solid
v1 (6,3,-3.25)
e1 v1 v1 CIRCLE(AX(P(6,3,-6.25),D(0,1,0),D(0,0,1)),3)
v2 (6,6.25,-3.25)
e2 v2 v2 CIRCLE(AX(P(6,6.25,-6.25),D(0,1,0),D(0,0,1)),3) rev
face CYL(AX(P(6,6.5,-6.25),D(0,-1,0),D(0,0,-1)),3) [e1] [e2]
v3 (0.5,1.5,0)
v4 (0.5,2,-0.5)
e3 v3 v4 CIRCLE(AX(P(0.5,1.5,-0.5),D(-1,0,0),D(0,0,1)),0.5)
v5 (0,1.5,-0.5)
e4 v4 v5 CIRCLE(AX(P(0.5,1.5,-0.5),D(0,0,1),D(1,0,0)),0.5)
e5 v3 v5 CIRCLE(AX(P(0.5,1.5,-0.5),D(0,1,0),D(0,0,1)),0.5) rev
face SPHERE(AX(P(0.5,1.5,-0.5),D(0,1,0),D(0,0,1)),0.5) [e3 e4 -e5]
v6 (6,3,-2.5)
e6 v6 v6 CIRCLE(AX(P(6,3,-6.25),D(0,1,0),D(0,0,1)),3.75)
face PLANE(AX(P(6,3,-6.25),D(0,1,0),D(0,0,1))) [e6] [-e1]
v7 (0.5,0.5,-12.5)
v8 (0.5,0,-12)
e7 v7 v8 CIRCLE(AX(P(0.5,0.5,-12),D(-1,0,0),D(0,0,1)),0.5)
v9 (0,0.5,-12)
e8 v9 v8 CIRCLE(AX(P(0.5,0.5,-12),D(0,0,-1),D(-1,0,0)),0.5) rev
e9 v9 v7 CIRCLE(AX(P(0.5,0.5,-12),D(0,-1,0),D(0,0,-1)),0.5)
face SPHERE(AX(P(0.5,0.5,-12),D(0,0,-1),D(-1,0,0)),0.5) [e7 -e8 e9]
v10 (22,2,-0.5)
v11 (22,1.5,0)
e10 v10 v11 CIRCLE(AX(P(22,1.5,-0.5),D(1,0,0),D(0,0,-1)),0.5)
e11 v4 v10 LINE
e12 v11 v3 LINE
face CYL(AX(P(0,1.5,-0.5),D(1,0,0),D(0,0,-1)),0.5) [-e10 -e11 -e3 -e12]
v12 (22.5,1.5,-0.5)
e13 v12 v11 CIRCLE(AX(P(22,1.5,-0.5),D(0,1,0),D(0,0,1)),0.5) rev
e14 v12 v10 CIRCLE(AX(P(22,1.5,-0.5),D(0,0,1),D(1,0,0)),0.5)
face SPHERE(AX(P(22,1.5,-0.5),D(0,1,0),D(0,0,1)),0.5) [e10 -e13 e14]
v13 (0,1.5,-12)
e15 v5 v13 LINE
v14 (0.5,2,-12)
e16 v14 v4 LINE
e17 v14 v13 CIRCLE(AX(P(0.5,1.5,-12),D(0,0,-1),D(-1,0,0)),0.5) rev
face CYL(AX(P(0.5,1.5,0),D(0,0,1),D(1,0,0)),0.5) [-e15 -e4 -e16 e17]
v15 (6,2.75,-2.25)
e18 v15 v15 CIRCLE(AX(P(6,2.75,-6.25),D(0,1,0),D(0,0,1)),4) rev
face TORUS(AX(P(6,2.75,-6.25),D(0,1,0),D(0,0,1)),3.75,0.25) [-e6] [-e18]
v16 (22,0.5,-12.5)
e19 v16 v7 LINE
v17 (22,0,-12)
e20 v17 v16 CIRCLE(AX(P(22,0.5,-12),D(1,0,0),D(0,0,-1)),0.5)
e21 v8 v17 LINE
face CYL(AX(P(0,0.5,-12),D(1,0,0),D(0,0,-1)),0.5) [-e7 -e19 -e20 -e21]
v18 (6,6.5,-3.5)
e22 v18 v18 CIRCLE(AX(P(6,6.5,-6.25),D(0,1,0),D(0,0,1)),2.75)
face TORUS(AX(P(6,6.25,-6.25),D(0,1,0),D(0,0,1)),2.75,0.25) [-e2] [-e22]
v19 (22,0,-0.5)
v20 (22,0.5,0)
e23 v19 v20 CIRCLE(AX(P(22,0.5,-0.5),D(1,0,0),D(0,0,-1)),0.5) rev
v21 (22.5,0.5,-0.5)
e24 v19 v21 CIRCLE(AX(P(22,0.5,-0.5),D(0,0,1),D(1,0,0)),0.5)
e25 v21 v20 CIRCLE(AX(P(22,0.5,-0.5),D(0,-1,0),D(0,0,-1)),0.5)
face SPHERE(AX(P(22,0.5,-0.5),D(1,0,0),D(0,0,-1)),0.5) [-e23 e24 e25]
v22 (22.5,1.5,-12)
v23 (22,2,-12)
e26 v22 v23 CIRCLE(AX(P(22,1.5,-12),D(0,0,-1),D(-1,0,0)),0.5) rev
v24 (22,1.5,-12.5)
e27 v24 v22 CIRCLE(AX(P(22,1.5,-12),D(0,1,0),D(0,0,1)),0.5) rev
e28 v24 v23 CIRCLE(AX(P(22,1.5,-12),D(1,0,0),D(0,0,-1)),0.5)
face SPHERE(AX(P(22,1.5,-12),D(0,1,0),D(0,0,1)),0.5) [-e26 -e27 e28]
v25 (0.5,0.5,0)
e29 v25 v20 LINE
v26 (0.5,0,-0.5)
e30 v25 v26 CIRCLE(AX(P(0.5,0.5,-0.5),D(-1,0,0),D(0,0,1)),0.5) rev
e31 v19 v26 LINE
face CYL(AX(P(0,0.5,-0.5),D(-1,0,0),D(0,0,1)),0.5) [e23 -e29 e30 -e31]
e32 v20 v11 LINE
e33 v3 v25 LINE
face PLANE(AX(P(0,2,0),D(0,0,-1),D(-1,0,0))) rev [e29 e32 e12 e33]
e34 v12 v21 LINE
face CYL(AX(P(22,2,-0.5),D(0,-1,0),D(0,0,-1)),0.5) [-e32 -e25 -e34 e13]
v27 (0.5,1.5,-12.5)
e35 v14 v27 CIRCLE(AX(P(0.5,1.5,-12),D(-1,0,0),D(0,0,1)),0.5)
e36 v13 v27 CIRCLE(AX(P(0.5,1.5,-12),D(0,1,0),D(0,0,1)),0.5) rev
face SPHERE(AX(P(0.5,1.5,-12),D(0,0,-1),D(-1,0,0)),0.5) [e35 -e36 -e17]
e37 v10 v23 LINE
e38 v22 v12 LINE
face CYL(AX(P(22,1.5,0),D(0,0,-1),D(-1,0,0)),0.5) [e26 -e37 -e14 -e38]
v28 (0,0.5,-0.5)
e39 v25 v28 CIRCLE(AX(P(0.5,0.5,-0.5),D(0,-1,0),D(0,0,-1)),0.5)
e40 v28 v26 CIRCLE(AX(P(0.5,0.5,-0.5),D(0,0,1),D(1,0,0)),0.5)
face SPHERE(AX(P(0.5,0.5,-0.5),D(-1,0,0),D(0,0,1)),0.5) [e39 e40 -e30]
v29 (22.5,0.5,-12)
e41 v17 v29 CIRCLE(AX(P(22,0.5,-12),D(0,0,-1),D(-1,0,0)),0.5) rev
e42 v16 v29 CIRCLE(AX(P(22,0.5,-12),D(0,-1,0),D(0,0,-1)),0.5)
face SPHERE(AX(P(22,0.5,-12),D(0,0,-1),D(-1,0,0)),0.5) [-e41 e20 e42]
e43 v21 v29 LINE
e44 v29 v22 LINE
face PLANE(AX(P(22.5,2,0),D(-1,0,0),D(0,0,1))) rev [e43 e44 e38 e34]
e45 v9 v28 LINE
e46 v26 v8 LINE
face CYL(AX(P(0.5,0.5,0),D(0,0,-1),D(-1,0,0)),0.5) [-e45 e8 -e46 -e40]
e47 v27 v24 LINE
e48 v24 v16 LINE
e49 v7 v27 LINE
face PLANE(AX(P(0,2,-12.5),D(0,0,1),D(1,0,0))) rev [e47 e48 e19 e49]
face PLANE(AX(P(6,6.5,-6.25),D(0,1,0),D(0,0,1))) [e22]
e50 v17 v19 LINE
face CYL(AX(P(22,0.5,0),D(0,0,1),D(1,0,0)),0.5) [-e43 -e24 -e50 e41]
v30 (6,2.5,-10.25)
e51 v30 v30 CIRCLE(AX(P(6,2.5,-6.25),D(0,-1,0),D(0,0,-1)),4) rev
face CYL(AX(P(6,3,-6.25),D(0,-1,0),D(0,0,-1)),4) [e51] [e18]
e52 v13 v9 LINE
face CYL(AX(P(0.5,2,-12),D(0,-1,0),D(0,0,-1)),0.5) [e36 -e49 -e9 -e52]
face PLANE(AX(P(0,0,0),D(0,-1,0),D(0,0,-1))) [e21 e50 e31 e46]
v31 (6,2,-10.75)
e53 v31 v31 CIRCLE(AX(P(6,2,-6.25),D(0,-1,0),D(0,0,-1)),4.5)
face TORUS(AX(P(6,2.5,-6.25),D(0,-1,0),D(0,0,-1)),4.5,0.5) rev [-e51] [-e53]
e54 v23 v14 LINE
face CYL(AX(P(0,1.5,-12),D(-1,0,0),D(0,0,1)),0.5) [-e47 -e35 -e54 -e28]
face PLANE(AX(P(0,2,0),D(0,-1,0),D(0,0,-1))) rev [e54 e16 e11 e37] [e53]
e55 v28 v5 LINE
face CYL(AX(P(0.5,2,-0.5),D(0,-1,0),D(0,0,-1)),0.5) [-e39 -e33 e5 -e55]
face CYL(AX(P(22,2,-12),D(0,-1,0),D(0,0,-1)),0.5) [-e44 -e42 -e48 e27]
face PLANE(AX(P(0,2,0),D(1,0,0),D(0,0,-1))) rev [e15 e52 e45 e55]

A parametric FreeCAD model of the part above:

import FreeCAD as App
import Part
import Sketcher
Q = App.Units.Quantity


def edges_at(feature, points):
    """Names of the edges that pass closest to the given points."""
    edges = feature.Shape.Edges
    near = lambda p: min(range(len(edges)), key=lambda i: edges[i].distToShape(Part.Vertex(*p))[0])
    return sorted({f"Edge{near(p) + 1}" for p in points})


def add_polygon(sketch, points):
    """Adds a closed chain of lines whose ends are joined by coincident constraints."""
    first, n = sketch.GeometryCount, len(points)
    for a, b in zip(points, points[1:] + points[:1]):
        sketch.addGeometry(Part.LineSegment(App.Vector(*a, 0), App.Vector(*b, 0)), False)
    for i in range(n):
        sketch.addConstraint(Sketcher.Constraint("Coincident", first + i, 2, first + (i + 1) % n, 1))

doc = App.newDocument("Part")
body = doc.addObject("PartDesign::Body", "Body")

# Sketch on XZ plane
sketch1 = body.newObject("Sketcher::SketchObject", "Sketch")
sketch1.AttachmentSupport = (doc.getObject("XZ_Plane"), [""])
sketch1.MapMode = "FlatFace"
add_polygon(sketch1, [(0, -12), (0, 0), (22, 0), (22, -12)])  # lines 0-3
sketch1.addConstraint([
    Sketcher.Constraint("Vertical", 0),
    Sketcher.Constraint("Horizontal", 1),
    Sketcher.Constraint("Vertical", 2),
    Sketcher.Constraint("Horizontal", 3),
    Sketcher.Constraint("Coincident", 0, 2, -1, 1),
    Sketcher.Constraint("DistanceX", 1, 1, 1, 2, Q("22.5 mm")),
    Sketcher.Constraint("DistanceY", 0, 1, 0, 2, Q("12.5 mm")),
])
pad1 = body.newObject("PartDesign::Pad", "Pad")
pad1.Profile = sketch1
pad1.Length = 2
pad1.Reversed = True

# Sketch on XZ plane
sketch2 = body.newObject("Sketcher::SketchObject", "Sketch001")
sketch2.AttachmentSupport = (doc.getObject("XZ_Plane"), [""])
sketch2.MapMode = "FlatFace"
sketch2.AttachmentOffset = App.Placement(App.Vector(0, 0, -2), App.Rotation())
sketch2.addGeometry(Part.Circle(App.Vector(6, -6.2, 0), App.Vector(0, 0, 1), 4), False)
sketch2.addConstraint([
    Sketcher.Constraint("Diameter", 0, Q("8 mm")),
    Sketcher.Constraint("DistanceX", -1, 1, 0, 3, Q("6 mm")),
    Sketcher.Constraint("DistanceY", 0, 3, -1, 1, Q("6.25 mm")),
])
pad2 = body.newObject("PartDesign::Pad", "Pad001")
pad2.Profile = sketch2
pad2.Length = 1
pad2.Reversed = True

# Sketch on XZ plane
sketch3 = body.newObject("Sketcher::SketchObject", "Sketch002")
sketch3.AttachmentSupport = (doc.getObject("XZ_Plane"), [""])
sketch3.MapMode = "FlatFace"
sketch3.AttachmentOffset = App.Placement(App.Vector(0, 0, -3), App.Rotation())
sketch3.addGeometry(Part.Circle(App.Vector(6, -6.2, 0), App.Vector(0, 0, 1), 3), False)
sketch3.addConstraint([
    Sketcher.Constraint("Diameter", 0, Q("6 mm")),
    Sketcher.Constraint("DistanceX", -1, 1, 0, 3, Q("6 mm")),
    Sketcher.Constraint("DistanceY", 0, 3, -1, 1, Q("6.25 mm")),
])
pad3 = body.newObject("PartDesign::Pad", "Pad002")
pad3.Profile = sketch3
pad3.Length = 3.5
pad3.Reversed = True
doc.recompute()

fillet = body.newObject("PartDesign::Fillet", "Fillet")
fillet.Base = (pad3, edges_at(pad3, [
    (22.5, 2, -6.25),
    (6, 2, -2.25),
    (11.25, 2, -12.5),
    (0, 2, -6.25),
    (11.25, 0, -12.5),
    (22.5, 0, -6.25),
    (11.25, 0, 0),
    (0, 0, -6.25),
    (0, 1, -12.5),
    (22.5, 1, -12.5),
    (22.5, 1, 0),
    (0, 1, 0),
    (11.25, 2, 0),
]))
fillet.Radius = 0.5
doc.recompute()

fillet2 = body.newObject("PartDesign::Fillet", "Fillet001")
fillet2.Base = (fillet, edges_at(fillet, [(6, 3, -2.25), (6, 6.5, -9.25)]))
fillet2.Radius = 0.25

doc.recompute()
